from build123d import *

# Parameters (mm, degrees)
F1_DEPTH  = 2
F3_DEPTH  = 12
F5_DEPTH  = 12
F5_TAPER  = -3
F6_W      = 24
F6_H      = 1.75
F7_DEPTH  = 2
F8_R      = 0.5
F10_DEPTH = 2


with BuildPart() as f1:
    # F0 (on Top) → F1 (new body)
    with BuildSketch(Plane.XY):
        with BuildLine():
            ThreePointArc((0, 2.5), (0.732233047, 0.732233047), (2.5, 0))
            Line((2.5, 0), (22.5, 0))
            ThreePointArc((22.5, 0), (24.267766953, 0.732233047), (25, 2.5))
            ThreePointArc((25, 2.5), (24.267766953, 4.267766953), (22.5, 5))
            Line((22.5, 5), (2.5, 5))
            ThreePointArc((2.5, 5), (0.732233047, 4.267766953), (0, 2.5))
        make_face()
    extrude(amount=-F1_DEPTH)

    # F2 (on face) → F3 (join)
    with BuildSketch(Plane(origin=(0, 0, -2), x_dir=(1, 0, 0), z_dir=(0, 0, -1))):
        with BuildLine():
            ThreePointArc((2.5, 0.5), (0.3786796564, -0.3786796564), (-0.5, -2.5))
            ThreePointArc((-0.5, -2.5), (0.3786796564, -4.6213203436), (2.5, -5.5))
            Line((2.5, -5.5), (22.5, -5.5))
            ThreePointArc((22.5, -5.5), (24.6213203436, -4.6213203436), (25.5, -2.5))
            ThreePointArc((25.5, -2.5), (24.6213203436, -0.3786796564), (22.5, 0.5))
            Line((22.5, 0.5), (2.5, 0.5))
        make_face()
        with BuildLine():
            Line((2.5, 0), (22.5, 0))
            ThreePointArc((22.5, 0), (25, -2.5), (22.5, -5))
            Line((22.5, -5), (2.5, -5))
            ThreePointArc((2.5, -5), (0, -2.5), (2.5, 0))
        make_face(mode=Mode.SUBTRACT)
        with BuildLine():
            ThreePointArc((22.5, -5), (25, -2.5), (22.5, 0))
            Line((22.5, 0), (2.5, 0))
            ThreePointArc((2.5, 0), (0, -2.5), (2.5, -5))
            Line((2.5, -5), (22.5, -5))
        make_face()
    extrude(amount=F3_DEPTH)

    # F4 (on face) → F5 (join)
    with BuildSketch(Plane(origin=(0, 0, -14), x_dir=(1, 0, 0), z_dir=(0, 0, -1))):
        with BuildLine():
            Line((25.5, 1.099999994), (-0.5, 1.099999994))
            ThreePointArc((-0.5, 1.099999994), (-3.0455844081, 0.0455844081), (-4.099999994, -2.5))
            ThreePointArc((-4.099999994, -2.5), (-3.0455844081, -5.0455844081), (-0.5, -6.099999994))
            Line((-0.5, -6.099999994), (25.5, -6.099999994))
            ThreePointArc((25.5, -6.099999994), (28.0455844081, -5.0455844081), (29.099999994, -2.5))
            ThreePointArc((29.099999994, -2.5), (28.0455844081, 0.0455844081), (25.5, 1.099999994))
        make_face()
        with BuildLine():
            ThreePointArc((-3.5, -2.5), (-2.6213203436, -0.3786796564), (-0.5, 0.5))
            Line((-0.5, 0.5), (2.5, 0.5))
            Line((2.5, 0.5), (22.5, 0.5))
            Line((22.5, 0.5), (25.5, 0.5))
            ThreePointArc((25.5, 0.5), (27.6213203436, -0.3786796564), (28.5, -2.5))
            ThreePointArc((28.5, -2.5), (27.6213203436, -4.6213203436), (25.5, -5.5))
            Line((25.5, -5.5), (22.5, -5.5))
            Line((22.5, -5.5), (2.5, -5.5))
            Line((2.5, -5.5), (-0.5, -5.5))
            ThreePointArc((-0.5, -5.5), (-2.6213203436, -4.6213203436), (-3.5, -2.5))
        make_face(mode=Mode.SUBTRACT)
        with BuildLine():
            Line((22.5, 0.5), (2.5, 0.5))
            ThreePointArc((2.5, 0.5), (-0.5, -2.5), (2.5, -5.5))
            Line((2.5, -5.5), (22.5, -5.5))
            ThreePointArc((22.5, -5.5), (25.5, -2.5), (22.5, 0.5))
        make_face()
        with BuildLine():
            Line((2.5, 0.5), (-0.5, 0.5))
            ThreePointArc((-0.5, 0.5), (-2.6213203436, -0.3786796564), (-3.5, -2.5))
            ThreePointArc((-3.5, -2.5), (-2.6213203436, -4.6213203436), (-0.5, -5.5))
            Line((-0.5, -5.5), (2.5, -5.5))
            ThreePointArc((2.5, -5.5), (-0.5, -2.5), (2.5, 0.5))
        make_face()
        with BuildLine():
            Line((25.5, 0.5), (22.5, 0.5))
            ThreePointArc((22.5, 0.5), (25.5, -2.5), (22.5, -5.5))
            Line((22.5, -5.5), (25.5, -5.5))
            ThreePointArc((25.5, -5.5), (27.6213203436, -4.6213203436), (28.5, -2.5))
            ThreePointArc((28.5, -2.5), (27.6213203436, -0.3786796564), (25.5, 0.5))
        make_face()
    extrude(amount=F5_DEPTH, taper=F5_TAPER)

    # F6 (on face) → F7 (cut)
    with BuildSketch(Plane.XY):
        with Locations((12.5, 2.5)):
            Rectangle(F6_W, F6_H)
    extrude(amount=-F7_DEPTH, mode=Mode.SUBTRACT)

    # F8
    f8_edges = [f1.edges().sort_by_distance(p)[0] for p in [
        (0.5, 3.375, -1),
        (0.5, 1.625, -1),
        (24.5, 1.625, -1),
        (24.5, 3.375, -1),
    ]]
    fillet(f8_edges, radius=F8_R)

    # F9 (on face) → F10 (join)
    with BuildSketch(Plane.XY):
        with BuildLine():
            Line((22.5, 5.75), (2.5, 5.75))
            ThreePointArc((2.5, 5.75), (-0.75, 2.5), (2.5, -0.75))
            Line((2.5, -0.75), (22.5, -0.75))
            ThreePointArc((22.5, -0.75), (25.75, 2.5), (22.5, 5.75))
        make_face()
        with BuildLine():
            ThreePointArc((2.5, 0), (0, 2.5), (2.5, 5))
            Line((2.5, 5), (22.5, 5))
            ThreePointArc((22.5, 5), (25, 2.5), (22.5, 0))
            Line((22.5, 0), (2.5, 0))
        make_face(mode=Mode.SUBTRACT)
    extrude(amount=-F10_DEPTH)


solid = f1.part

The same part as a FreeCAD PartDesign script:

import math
import FreeCAD as App
import Part
import Sketcher
from FreeCAD import Vector


def edges_at(feature, points):
    """Names of the edges that pass closest to the given points."""
    edges = feature.Shape.Edges
    near = lambda p: min(range(len(edges)), key=lambda i: edges[i].distToShape(Part.Vertex(*p))[0])
    return sorted({f"Edge{near(p) + 1}" for p in points})

doc = App.newDocument("Part")
body = doc.addObject("PartDesign::Body", "Body")

# Sketch on XY plane
sketch1 = doc.addObject("Sketcher::SketchObject", "Sketch")
body.addObject(sketch1)
sketch1.AttachmentSupport = (doc.XY_Plane, [""])
sketch1.MapMode = "FlatFace"
sketch1.addGeometry([
    Part.ArcOfCircle(Part.Circle(Vector(2.5, 2.5, 0), Vector(0, 0, 1), 2.5), math.radians(180), math.radians(270)),  # 0
    Part.LineSegment(Vector(2.5, 0, 0), Vector(22.5, 0, 0)),  # 1
    Part.ArcOfCircle(Part.Circle(Vector(22.5, 2.5, 0), Vector(0, 0, 1), 2.5), math.radians(-90), math.radians(0)),  # 2
    Part.ArcOfCircle(Part.Circle(Vector(22.5, 2.5, 0), Vector(0, 0, 1), 2.5), math.radians(0), math.radians(90)),  # 3
    Part.LineSegment(Vector(22.5, 5, 0), Vector(2.5, 5, 0)),  # 4
    Part.ArcOfCircle(Part.Circle(Vector(2.5, 2.5, 0), Vector(0, 0, 1), 2.5), math.radians(90), math.radians(180)),  # 5
], False)
sketch1.addConstraint([
    Sketcher.Constraint("Tangent", 0, 2, 1, 1),
    Sketcher.Constraint("Tangent", 1, 2, 2, 1),
    Sketcher.Constraint("Tangent", 2, 2, 3, 1),
    Sketcher.Constraint("Tangent", 3, 2, 4, 1),
    Sketcher.Constraint("Tangent", 4, 2, 5, 1),
    Sketcher.Constraint("Tangent", 5, 2, 0, 1),
    Sketcher.Constraint("Horizontal", 1),
    Sketcher.Constraint("Horizontal", 4),
    Sketcher.Constraint("Equal", 0, 2),
    Sketcher.Constraint("Equal", 2, 3),
    Sketcher.Constraint("PointOnObject", 0, 2, -1),
    Sketcher.Constraint("PointOnObject", 5, 2, -2),
    Sketcher.Constraint("Horizontal", 5, 3, 2, 2),
    Sketcher.Constraint("Horizontal", 2, 2, 5, 2),
    Sketcher.Constraint("Radius", 0, 2.5),
    Sketcher.Constraint("DistanceX", 1, 1, 1, 2, 20.0),
])
pad1 = doc.addObject("PartDesign::Pad", "Pad")
body.addObject(pad1)
pad1.Profile = sketch1
pad1.Length = 2
pad1.Reversed = True

# Sketch on XY plane
sketch2 = doc.addObject("Sketcher::SketchObject", "Sketch001")
body.addObject(sketch2)
sketch2.AttachmentSupport = (doc.XY_Plane, [""])
sketch2.MapMode = "FlatFace"
sketch2.AttachmentOffset = App.Placement(Vector(0, 0, -2), App.Rotation())
sketch2.addGeometry([
    Part.ArcOfCircle(Part.Circle(Vector(2.5, 2.5, 0), Vector(0, 0, 1), 3), math.radians(180), math.radians(270)),  # 0
    Part.ArcOfCircle(Part.Circle(Vector(2.5, 2.5, 0), Vector(0, 0, 1), 3), math.radians(90), math.radians(180)),  # 1
    Part.LineSegment(Vector(2.5, 5.5, 0), Vector(22.5, 5.5, 0)),  # 2
    Part.ArcOfCircle(Part.Circle(Vector(22.5, 2.5, 0), Vector(0, 0, 1), 3), math.radians(0), math.radians(90)),  # 3
    Part.ArcOfCircle(Part.Circle(Vector(22.5, 2.5, 0), Vector(0, 0, 1), 3), math.radians(-90), math.radians(0)),  # 4
    Part.LineSegment(Vector(22.5, -0.5, 0), Vector(2.5, -0.5, 0)),  # 5
], False)
sketch2.addConstraint([
    Sketcher.Constraint("Tangent", 0, 1, 1, 2),
    Sketcher.Constraint("Tangent", 1, 1, 2, 1),
    Sketcher.Constraint("Tangent", 2, 2, 3, 2),
    Sketcher.Constraint("Tangent", 3, 1, 4, 2),
    Sketcher.Constraint("Tangent", 4, 1, 5, 1),
    Sketcher.Constraint("Tangent", 5, 2, 0, 2),
    Sketcher.Constraint("Horizontal", 2),
    Sketcher.Constraint("Horizontal", 5),
    Sketcher.Constraint("Equal", 0, 1),
    Sketcher.Constraint("Equal", 1, 3),
    Sketcher.Constraint("Horizontal", 4, 3, 0, 1),
    Sketcher.Constraint("Horizontal", 0, 1, 3, 1),
    Sketcher.Constraint("Radius", 0, 3.0),
    Sketcher.Constraint("DistanceX", 2, 1, 2, 2, 20.0),
    Sketcher.Constraint("DistanceX", -1, 1, 0, 3, 2.5),
    Sketcher.Constraint("DistanceY", -1, 1, 0, 3, 2.5),
])
pad2 = doc.addObject("PartDesign::Pad", "Pad001")
body.addObject(pad2)
pad2.Profile = sketch2
pad2.Length = 12
pad2.Reversed = True

# Sketch on XY plane
sketch3 = doc.addObject("Sketcher::SketchObject", "Sketch002")
body.addObject(sketch3)
sketch3.AttachmentSupport = (doc.XY_Plane, [""])
sketch3.MapMode = "FlatFace"
sketch3.AttachmentOffset = App.Placement(Vector(0, 0, -14), App.Rotation())
sketch3.addGeometry([
    Part.LineSegment(Vector(25.5, -1.1, 0), Vector(-0.5, -1.1, 0)),  # 0
    Part.ArcOfCircle(Part.Circle(Vector(-0.5, 2.5, 0), Vector(0, 0, 1), 3.6), math.radians(180), math.radians(270)),  # 1
    Part.ArcOfCircle(Part.Circle(Vector(-0.5, 2.5, 0), Vector(0, 0, 1), 3.6), math.radians(90), math.radians(180)),  # 2
    Part.LineSegment(Vector(-0.5, 6.1, 0), Vector(25.5, 6.1, 0)),  # 3
    Part.ArcOfCircle(Part.Circle(Vector(25.5, 2.5, 0), Vector(0, 0, 1), 3.6), math.radians(0), math.radians(90)),  # 4
    Part.ArcOfCircle(Part.Circle(Vector(25.5, 2.5, 0), Vector(0, 0, 1), 3.6), math.radians(-90), math.radians(0)),  # 5
], False)
sketch3.addConstraint([
    Sketcher.Constraint("Tangent", 0, 2, 1, 2),
    Sketcher.Constraint("Tangent", 1, 1, 2, 2),
    Sketcher.Constraint("Tangent", 2, 1, 3, 1),
    Sketcher.Constraint("Tangent", 3, 2, 4, 2),
    Sketcher.Constraint("Tangent", 4, 1, 5, 2),
    Sketcher.Constraint("Tangent", 5, 1, 0, 1),
    Sketcher.Constraint("Horizontal", 0),
    Sketcher.Constraint("Horizontal", 3),
    Sketcher.Constraint("Equal", 1, 2),
    Sketcher.Constraint("Equal", 2, 4),
    Sketcher.Constraint("Horizontal", 5, 3, 1, 1),
    Sketcher.Constraint("Horizontal", 1, 1, 4, 1),
    Sketcher.Constraint("Radius", 1, 3.6),
    Sketcher.Constraint("DistanceX", 0, 2, 0, 1, 26.0),
    Sketcher.Constraint("DistanceX", 1, 3, -1, 1, 0.5),
    Sketcher.Constraint("DistanceY", -1, 1, 1, 3, 2.5),
])
pad3 = doc.addObject("PartDesign::Pad", "Pad002")
body.addObject(pad3)
pad3.Profile = sketch3
pad3.Length = 12
pad3.Reversed = True
pad3.TaperAngle = 3

# Sketch on XY plane
sketch4 = doc.addObject("Sketcher::SketchObject", "Sketch003")
body.addObject(sketch4)
sketch4.AttachmentSupport = (doc.XY_Plane, [""])
sketch4.MapMode = "FlatFace"
sketch4.addGeometry([
    Part.LineSegment(Vector(0.5, 3.375, 0), Vector(0.5, 1.625, 0)),
    Part.LineSegment(Vector(0.5, 1.625, 0), Vector(24.5, 1.625, 0)),
    Part.LineSegment(Vector(24.5, 1.625, 0), Vector(24.5, 3.375, 0)),
    Part.LineSegment(Vector(24.5, 3.375, 0), Vector(0.5, 3.375, 0)),
], False)
sketch4.addConstraint([
    Sketcher.Constraint("Coincident", 0, 2, 1, 1),
    Sketcher.Constraint("Coincident", 1, 2, 2, 1),
    Sketcher.Constraint("Coincident", 2, 2, 3, 1),
    Sketcher.Constraint("Coincident", 3, 2, 0, 1),
    Sketcher.Constraint("Vertical", 0),
    Sketcher.Constraint("Horizontal", 1),
    Sketcher.Constraint("Vertical", 2),
    Sketcher.Constraint("Horizontal", 3),
    Sketcher.Constraint("DistanceX", 1, 1, 1, 2, 24.0),
    Sketcher.Constraint("DistanceY", 0, 2, 0, 1, 1.75),
    Sketcher.Constraint("DistanceX", -1, 1, 0, 2, 0.5),
    Sketcher.Constraint("DistanceY", -1, 1, 0, 2, 1.625),
])
pocket1 = doc.addObject("PartDesign::Pocket", "Pocket")
body.addObject(pocket1)
pocket1.Profile = sketch4
pocket1.Length = 2
doc.recompute()

fillet = doc.addObject("PartDesign::Fillet", "Fillet")
body.addObject(fillet)
fillet.Base = (pocket1, edges_at(pocket1, [
    (0.5, 3.375, -1),
    (0.5, 1.625, -1),
    (24.5, 1.625, -1),
    (24.5, 3.375, -1),
]))
fillet.Radius = 0.5

# Sketch on XY plane
sketch5 = doc.addObject("Sketcher::SketchObject", "Sketch004")
body.addObject(sketch5)
sketch5.AttachmentSupport = (doc.XY_Plane, [""])
sketch5.MapMode = "FlatFace"
sketch5.addGeometry([
    Part.LineSegment(Vector(22.5, 5.75, 0), Vector(2.5, 5.75, 0)),  # 0
    Part.ArcOfCircle(Part.Circle(Vector(2.5, 2.5, 0), Vector(0, 0, 1), 3.25), math.radians(90), math.radians(270)),  # 1
    Part.LineSegment(Vector(2.5, -0.75, 0), Vector(22.5, -0.75, 0)),  # 2
    Part.ArcOfCircle(Part.Circle(Vector(22.5, 2.5, 0), Vector(0, 0, 1), 3.25), math.radians(-90), math.radians(90)),  # 3
    Part.LineSegment(Vector(22.5, 0, 0), Vector(2.5, 0, 0)),  # 4
    Part.ArcOfCircle(Part.Circle(Vector(2.5, 2.5, 0), Vector(0, 0, 1), 2.5), math.radians(90), math.radians(270)),  # 5
    Part.LineSegment(Vector(2.5, 5, 0), Vector(22.5, 5, 0)),  # 6
    Part.ArcOfCircle(Part.Circle(Vector(22.5, 2.5, 0), Vector(0, 0, 1), 2.5), math.radians(-90), math.radians(90)),  # 7
], False)
sketch5.addConstraint([
    Sketcher.Constraint("Tangent", 0, 2, 1, 1),
    Sketcher.Constraint("Tangent", 1, 2, 2, 1),
    Sketcher.Constraint("Tangent", 2, 2, 3, 1),
    Sketcher.Constraint("Tangent", 3, 2, 0, 1),
    Sketcher.Constraint("Tangent", 4, 2, 5, 2),
    Sketcher.Constraint("Tangent", 5, 1, 6, 1),
    Sketcher.Constraint("Tangent", 6, 2, 7, 2),
    Sketcher.Constraint("Tangent", 7, 1, 4, 1),
    Sketcher.Constraint("Horizontal", 0),
    Sketcher.Constraint("Horizontal", 2),
    Sketcher.Constraint("Horizontal", 4),
    Sketcher.Constraint("Horizontal", 6),
    Sketcher.Constraint("Coincident", 5, 3, 1, 3),
    Sketcher.Constraint("PointOnObject", 4, 2, -1),
    Sketcher.Constraint("Vertical", 7, 3, 2, 2),
    Sketcher.Constraint("Radius", 5, 2.5),
    Sketcher.Constraint("DistanceX", 0, 2, 0, 1, 20.0),
    Sketcher.Constraint("Radius", 1, 3.25),
    Sketcher.Constraint("DistanceX", -1, 1, 1, 3, 2.5),
])
pad4 = doc.addObject("PartDesign::Pad", "Pad003")
body.addObject(pad4)
pad4.Profile = sketch5
pad4.Length = 2
pad4.Reversed = True

doc.recompute()
